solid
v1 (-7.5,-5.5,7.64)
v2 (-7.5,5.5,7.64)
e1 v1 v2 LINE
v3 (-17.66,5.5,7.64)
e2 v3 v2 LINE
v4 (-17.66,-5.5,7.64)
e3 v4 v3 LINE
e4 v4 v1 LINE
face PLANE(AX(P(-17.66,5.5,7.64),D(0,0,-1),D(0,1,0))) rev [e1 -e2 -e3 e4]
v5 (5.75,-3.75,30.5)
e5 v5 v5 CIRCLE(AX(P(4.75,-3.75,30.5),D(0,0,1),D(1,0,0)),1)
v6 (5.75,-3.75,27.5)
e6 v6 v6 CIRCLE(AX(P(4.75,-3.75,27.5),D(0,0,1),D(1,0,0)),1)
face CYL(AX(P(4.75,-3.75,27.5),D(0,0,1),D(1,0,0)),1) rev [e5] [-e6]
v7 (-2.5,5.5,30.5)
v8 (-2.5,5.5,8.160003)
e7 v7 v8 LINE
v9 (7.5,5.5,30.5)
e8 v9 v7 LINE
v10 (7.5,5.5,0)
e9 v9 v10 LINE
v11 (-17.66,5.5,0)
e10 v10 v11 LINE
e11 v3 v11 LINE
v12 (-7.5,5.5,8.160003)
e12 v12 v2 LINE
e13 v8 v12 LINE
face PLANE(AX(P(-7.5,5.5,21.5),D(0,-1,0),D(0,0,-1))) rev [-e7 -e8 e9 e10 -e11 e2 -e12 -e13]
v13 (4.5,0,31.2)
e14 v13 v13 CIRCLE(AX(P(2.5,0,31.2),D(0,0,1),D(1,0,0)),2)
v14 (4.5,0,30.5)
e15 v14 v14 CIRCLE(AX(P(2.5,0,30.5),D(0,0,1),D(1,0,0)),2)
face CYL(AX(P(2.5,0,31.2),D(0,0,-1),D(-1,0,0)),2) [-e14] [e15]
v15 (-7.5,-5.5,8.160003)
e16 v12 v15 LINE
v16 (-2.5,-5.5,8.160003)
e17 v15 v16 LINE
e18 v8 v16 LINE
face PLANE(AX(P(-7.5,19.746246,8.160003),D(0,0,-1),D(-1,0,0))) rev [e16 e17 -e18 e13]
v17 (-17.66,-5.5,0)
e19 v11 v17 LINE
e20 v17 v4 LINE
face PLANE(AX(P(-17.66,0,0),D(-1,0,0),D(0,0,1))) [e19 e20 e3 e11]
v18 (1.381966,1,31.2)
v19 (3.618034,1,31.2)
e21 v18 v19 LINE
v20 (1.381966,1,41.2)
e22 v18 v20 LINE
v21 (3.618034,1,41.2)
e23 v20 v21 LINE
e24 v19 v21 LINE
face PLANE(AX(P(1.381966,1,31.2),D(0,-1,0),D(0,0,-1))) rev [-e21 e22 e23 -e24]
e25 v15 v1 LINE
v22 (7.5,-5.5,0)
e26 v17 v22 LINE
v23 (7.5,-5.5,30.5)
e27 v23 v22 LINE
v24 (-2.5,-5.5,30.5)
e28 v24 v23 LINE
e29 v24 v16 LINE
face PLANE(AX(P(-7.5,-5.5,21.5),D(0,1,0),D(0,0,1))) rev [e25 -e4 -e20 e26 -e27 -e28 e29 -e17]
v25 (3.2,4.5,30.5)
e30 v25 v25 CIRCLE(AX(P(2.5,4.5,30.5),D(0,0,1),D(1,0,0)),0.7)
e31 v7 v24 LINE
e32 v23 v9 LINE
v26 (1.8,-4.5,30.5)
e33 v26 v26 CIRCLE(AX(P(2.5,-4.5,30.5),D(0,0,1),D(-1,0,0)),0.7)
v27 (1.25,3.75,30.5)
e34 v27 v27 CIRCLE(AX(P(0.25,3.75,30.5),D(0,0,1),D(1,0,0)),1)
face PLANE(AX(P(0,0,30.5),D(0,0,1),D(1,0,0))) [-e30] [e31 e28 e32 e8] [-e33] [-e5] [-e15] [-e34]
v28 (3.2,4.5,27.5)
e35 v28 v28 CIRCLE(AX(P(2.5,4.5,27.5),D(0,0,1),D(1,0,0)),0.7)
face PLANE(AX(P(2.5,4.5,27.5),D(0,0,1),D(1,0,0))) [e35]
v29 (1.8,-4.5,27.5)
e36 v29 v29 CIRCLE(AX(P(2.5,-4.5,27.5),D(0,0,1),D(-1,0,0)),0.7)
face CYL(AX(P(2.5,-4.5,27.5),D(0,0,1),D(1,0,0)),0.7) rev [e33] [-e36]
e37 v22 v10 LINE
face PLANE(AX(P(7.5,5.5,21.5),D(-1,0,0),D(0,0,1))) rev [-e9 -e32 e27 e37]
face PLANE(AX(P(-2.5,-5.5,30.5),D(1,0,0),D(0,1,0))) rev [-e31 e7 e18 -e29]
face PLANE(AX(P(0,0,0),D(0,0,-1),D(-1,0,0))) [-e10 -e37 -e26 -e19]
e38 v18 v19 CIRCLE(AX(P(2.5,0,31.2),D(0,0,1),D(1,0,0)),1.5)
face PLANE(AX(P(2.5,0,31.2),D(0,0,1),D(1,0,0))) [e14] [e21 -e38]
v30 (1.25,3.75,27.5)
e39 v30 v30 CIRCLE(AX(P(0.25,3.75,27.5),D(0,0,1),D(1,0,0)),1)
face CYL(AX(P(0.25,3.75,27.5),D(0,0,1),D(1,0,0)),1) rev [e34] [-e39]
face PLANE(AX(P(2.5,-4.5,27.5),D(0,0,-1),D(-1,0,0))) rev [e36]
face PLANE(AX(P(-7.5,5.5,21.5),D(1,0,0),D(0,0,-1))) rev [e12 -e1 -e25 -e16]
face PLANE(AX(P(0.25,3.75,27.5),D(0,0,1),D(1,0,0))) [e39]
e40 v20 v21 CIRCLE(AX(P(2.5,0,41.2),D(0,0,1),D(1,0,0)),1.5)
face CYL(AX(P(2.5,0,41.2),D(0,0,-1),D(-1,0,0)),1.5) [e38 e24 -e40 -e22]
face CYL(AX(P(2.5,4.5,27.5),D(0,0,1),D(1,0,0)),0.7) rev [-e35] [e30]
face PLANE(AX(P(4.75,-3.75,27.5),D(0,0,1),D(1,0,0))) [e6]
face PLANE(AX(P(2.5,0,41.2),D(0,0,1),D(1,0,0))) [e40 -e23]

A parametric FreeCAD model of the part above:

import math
import FreeCAD as App
import Part
import Sketcher
from FreeCAD import Vector


def add_polygon(sketch, points):
    """Adds a closed chain of lines whose ends are joined by coincident constraints."""
    first, n = sketch.GeometryCount, len(points)
    for a, b in zip(points, points[1:] + points[:1]):
        sketch.addGeometry(Part.LineSegment(App.Vector(*a, 0), App.Vector(*b, 0)), False)
    for i in range(n):
        sketch.addConstraint(Sketcher.Constraint("Coincident", first + i, 2, first + (i + 1) % n, 1))

doc = App.newDocument("Part")
params = doc.addObject("Spreadsheet::Sheet", "Params")
for row, (alias, value) in enumerate([
    ("sketch1_width", "15 mm"),
    ("sketch1_height", "11 mm"),
    ("pad1_length", "21.5 mm"),
    ("sketch2_width", "10 mm"),
    ("sketch2_height", "11 mm"),
    ("pad2_length", "9 mm"),
    ("sketch3_diameter", "4 mm"),
    ("pad3_length", "0.7 mm"),
    ("sketch4_diameter", "3 mm"),
    ("pad4_length", "10 mm"),
    ("sketch5_radius", "1.5 mm"),
    ("pocket1_length", "10 mm"),
    ("sketch6_diameter", "2 mm"),
    ("sketch6_diameter2", "1.4 mm"),
    ("pocket2_length", "3 mm"),
    ("sketch7_width", "11 mm"),
    ("sketch7_height", "7.64 mm"),
    ("pad5_length", "10.16 mm"),
    ("sketch8_width", "5 mm"),
    ("pocket3_length", "11 mm"),
], start=1):
    params.set(f"A{row}", alias)
    params.set(f"B{row}", "=" + value)
    params.setAlias(f"B{row}", alias)

body = doc.addObject("PartDesign::Body", "Body")

sketch1 = body.newObject("Sketcher::SketchObject", "Sketch")
sketch1.AttachmentSupport = (doc.getObject("XY_Plane"), [""])
sketch1.MapMode = "FlatFace"
add_polygon(sketch1, [(-7.5, 5.5), (-7.5, -5.5), (7.5, -5.5), (7.5, 5.5)])
sketch1.addConstraint([
    Sketcher.Constraint("Vertical", 0),
    Sketcher.Constraint("Horizontal", 1),
    Sketcher.Constraint("Vertical", 2),
    Sketcher.Constraint("Horizontal", 3),
    Sketcher.Constraint("Symmetric", 0, 2, 2, 2, -1, 1),
    Sketcher.Constraint("DistanceX", 1, 1, 1, 2, 15.0),
    Sketcher.Constraint("DistanceY", 0, 2, 0, 1, 11.0),
])
sketch1.setExpression("Constraints[9]", "Params.sketch1_width")
sketch1.setExpression("Constraints[10]", "Params.sketch1_height")
pad1 = body.newObject("PartDesign::Pad", "Pad")
pad1.Profile = sketch1
pad1.setExpression("Length", "Params.pad1_length")

sketch2 = body.newObject("Sketcher::SketchObject", "Sketch001")
sketch2.AttachmentSupport = (doc.getObject("XY_Plane"), [""])
sketch2.MapMode = "FlatFace"
sketch2.AttachmentOffset = App.Placement(Vector(0, 0, 21.5), App.Rotation())
add_polygon(sketch2, [(-2.5, 5.5), (-2.5, -5.5), (7.5, -5.5), (7.5, 5.5)])
sketch2.addConstraint([
    Sketcher.Constraint("Vertical", 0),
    Sketcher.Constraint("Horizontal", 1),
    Sketcher.Constraint("Vertical", 2),
    Sketcher.Constraint("Horizontal", 3),
    Sketcher.Constraint("DistanceX", 1, 1, 1, 2, 10.0),
    Sketcher.Constraint("DistanceY", 0, 2, 0, 1, 11.0),
    Sketcher.Constraint("DistanceX", 0, 2, -1, 1, 2.5),
    Sketcher.Constraint("DistanceY", 0, 2, -1, 1, 5.5),
])
sketch2.setExpression("Constraints[8]", "Params.sketch2_width")
sketch2.setExpression("Constraints[9]", "Params.sketch2_height")
pad2 = body.newObject("PartDesign::Pad", "Pad001")
pad2.Profile = sketch2
pad2.setExpression("Length", "Params.pad2_length")

sketch3 = body.newObject("Sketcher::SketchObject", "Sketch002")
sketch3.AttachmentSupport = (doc.getObject("XY_Plane"), [""])
sketch3.MapMode = "FlatFace"
sketch3.AttachmentOffset = App.Placement(Vector(0, 0, 30.5), App.Rotation())
sketch3.addGeometry(Part.Circle(Vector(2.5, 0, 0), Vector(0, 0, 1), 2), False)
sketch3.addConstraint([
    Sketcher.Constraint("PointOnObject", 0, 3, -1),
    Sketcher.Constraint("Diameter", 0, 4.0),
    Sketcher.Constraint("DistanceX", -1, 1, 0, 3, 2.5),
])
sketch3.setExpression("Constraints[1]", "Params.sketch3_diameter")
pad3 = body.newObject("PartDesign::Pad", "Pad002")
pad3.Profile = sketch3
pad3.setExpression("Length", "Params.pad3_length")

sketch4 = body.newObject("Sketcher::SketchObject", "Sketch003")
sketch4.AttachmentSupport = (doc.getObject("XY_Plane"), [""])
sketch4.MapMode = "FlatFace"
sketch4.AttachmentOffset = App.Placement(Vector(0, 0, 31.2), App.Rotation())
sketch4.addGeometry(Part.Circle(Vector(2.5, 0, 0), Vector(0, 0, 1), 1.5), False)
sketch4.addConstraint([
    Sketcher.Constraint("PointOnObject", 0, 3, -1),
    Sketcher.Constraint("Diameter", 0, 3.0),
    Sketcher.Constraint("DistanceX", -1, 1, 0, 3, 2.5),
])
sketch4.setExpression("Constraints[1]", "Params.sketch4_diameter")
pad4 = body.newObject("PartDesign::Pad", "Pad003")
pad4.Profile = sketch4
pad4.setExpression("Length", "Params.pad4_length")

sketch5 = body.newObject("Sketcher::SketchObject", "Sketch004")
sketch5.AttachmentSupport = (doc.getObject("XY_Plane"), [""])
sketch5.MapMode = "FlatFace"
sketch5.AttachmentOffset = App.Placement(Vector(0, 0, 41.2), App.Rotation())
sketch5.addGeometry([
    Part.LineSegment(Vector(1.381966, 1, 0), Vector(3.618034, 1, 0)),
    Part.ArcOfCircle(Part.Circle(Vector(2.5, 0, 0), Vector(0, 0, 1), 1.5), math.radians(41.810315), math.radians(138.189685)),
], False)
sketch5.addConstraint([
    Sketcher.Constraint("Coincident", 0, 1, 1, 2),
    Sketcher.Constraint("Coincident", 1, 1, 0, 2),
    Sketcher.Constraint("Horizontal", 0),
    Sketcher.Constraint("PointOnObject", 1, 3, -1),
    Sketcher.Constraint("Radius", 1, 1.5),
    Sketcher.Constraint("DistanceY", -1, 1, 0, 1, 1.0),
    Sketcher.Constraint("DistanceX", -1, 1, 1, 3, 2.5),
])
sketch5.setExpression("Constraints[4]", "Params.sketch5_radius")
pocket1 = body.newObject("PartDesign::Pocket", "Pocket")
pocket1.Profile = sketch5
pocket1.setExpression("Length", "Params.pocket1_length")

sketch6 = body.newObject("Sketcher::SketchObject", "Sketch005")
sketch6.AttachmentSupport = (doc.getObject("XY_Plane"), [""])
sketch6.MapMode = "FlatFace"
sketch6.AttachmentOffset = App.Placement(Vector(0, 0, 30.5), App.Rotation())
sketch6.addGeometry([
    Part.Circle(Vector(2.5, 4.5, 0), Vector(0, 0, 1), 0.7),
    Part.Circle(Vector(2.5, -4.5, 0), Vector(0, 0, 1), 0.7),
    Part.Circle(Vector(4.75, -3.75, 0), Vector(0, 0, 1), 1),
    Part.Circle(Vector(0.25, 3.75, 0), Vector(0, 0, 1), 1),
], False)
sketch6.addConstraint([
    Sketcher.Constraint("Equal", 0, 1),
    Sketcher.Constraint("Equal", 2, 3),
    Sketcher.Constraint("Symmetric", 0, 3, 1, 3, -1),
    Sketcher.Constraint("Diameter", 2, 2.0),
    Sketcher.Constraint("Diameter", 0, 1.4),
    Sketcher.Constraint("DistanceY", 1, 3, 0, 3, 9.0),
    Sketcher.Constraint("DistanceX", -1, 1, 0, 3, 2.5),
    Sketcher.Constraint("DistanceX", 3, 3, 2, 3, 4.5),
    Sketcher.Constraint("DistanceY", 2, 3, 3, 3, 7.5),
    Sketcher.Constraint("DistanceX", -1, 1, 2, 3, 4.75),
    Sketcher.Constraint("DistanceY", 2, 3, -1, 1, 3.75),
])
sketch6.setExpression("Constraints[3]", "Params.sketch6_diameter")
sketch6.setExpression("Constraints[4]", "Params.sketch6_diameter2")
pocket2 = body.newObject("PartDesign::Pocket", "Pocket001")
pocket2.Profile = sketch6
pocket2.setExpression("Length", "Params.pocket2_length")

sketch7 = body.newObject("Sketcher::SketchObject", "Sketch006")
sketch7.AttachmentSupport = (doc.getObject("YZ_Plane"), [""])
sketch7.MapMode = "FlatFace"
sketch7.AttachmentOffset = App.Placement(Vector(0, 0, -7.5), App.Rotation())
add_polygon(sketch7, [(5.5, 0), (-5.5, 0), (-5.5, 7.64), (5.5, 7.64)])
sketch7.addConstraint([
    Sketcher.Constraint("Horizontal", 0),
    Sketcher.Constraint("Vertical", 1),
    Sketcher.Constraint("Horizontal", 2),
    Sketcher.Constraint("Vertical", 3),
    Sketcher.Constraint("Symmetric", 0, 2, 3, 2, -1, 1),
    Sketcher.Constraint("DistanceX", 0, 2, 0, 1, 11.0),
    Sketcher.Constraint("DistanceY", 1, 1, 1, 2, 7.64),
])
sketch7.setExpression("Constraints[9]", "Params.sketch7_width")
sketch7.setExpression("Constraints[10]", "Params.sketch7_height")
pad5 = body.newObject("PartDesign::Pad", "Pad004")
pad5.Profile = sketch7
pad5.setExpression("Length", "Params.pad5_length")
pad5.Reversed = True

sketch8 = body.newObject("Sketcher::SketchObject", "Sketch007")
sketch8.AttachmentSupport = (doc.getObject("XZ_Plane"), [""])
sketch8.MapMode = "FlatFace"
sketch8.AttachmentOffset = App.Placement(Vector(0, 0, 5.5), App.Rotation())
add_polygon(sketch8, [(-7.5, 21.5), (-7.5, 8.160003), (-2.5, 8.160003), (-2.5, 21.5)])
sketch8.addConstraint([
    Sketcher.Constraint("Vertical", 0),
    Sketcher.Constraint("Horizontal", 1),
    Sketcher.Constraint("Vertical", 2),
    Sketcher.Constraint("Horizontal", 3),
    Sketcher.Constraint("DistanceX", 1, 1, 1, 2, 5.0),
    Sketcher.Constraint("DistanceX", 0, 2, -1, 1, 7.5),
    Sketcher.Constraint("DistanceY", -1, 1, 2, 2, 21.5),
    Sketcher.Constraint("DistanceY", 0, 2, 0, 1, 13.339997),
])
sketch8.setExpression("Constraints[8]", "Params.sketch8_width")
pocket3 = body.newObject("PartDesign::Pocket", "Pocket002")
pocket3.Profile = sketch8
pocket3.setExpression("Length", "Params.pocket3_length")

doc.recompute()
